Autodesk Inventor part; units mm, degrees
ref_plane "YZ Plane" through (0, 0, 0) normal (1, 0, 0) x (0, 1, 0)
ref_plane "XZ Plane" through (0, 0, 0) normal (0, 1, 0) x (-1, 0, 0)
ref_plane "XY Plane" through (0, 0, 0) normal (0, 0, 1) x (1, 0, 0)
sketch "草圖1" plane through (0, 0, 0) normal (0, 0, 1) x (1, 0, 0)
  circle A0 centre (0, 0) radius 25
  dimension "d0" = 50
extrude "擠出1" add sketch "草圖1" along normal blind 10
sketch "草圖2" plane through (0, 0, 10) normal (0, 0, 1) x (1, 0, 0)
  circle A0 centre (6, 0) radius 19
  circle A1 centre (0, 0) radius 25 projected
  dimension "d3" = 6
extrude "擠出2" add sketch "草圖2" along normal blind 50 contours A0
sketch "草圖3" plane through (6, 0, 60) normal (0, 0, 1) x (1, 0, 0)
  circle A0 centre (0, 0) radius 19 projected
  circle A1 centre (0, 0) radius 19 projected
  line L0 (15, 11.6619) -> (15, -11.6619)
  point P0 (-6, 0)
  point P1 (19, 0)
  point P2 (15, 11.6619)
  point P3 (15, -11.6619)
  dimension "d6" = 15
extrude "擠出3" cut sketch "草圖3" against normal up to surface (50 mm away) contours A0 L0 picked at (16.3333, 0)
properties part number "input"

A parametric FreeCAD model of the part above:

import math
import FreeCAD as App
import Part
import Sketcher

V = App.Vector

doc = App.newDocument("Part")
body = doc.addObject("PartDesign::Body", "Body")

# Sketch on XY plane
sketch1 = body.newObject("Sketcher::SketchObject", "Sketch")
sketch1.AttachmentSupport = (doc.getObject("XY_Plane"), [""])
sketch1.MapMode = "FlatFace"
sketch1.addGeometry(Part.Circle(V(0, 0, 0), V(0, 0, 1), 25), False)
sketch1.addConstraint([
    Sketcher.Constraint("Coincident", 0, 3, -1, 1),
    Sketcher.Constraint("Diameter", 0, 50.0),
])
pad1 = body.newObject("PartDesign::Pad", "Pad")
pad1.Profile = sketch1
pad1.Length = 10

# Sketch on XY plane
sketch2 = body.newObject("Sketcher::SketchObject", "Sketch001")
sketch2.AttachmentSupport = (doc.getObject("XY_Plane"), [""])
sketch2.MapMode = "FlatFace"
sketch2.AttachmentOffset = App.Placement(V(0, 0, 10), App.Rotation())
sketch2.addGeometry(Part.Circle(V(6, 0, 0), V(0, 0, 1), 19), False)
sketch2.addConstraint([
    Sketcher.Constraint("PointOnObject", 0, 3, -1),
    Sketcher.Constraint("Diameter", 0, 38.0),
    Sketcher.Constraint("DistanceX", -1, 1, 0, 3, 6.0),
])
pad2 = body.newObject("PartDesign::Pad", "Pad001")
pad2.Profile = sketch2
pad2.Length = 50

# Sketch on XY plane
sketch3 = body.newObject("Sketcher::SketchObject", "Sketch002")
sketch3.AttachmentSupport = (doc.getObject("XY_Plane"), [""])
sketch3.MapMode = "FlatFace"
sketch3.AttachmentOffset = App.Placement(V(0, 0, 60), App.Rotation())
sketch3.addGeometry([
    Part.ArcOfCircle(Part.Circle(V(6, 0, 0), V(0, 0, 1), 19), math.radians(-38), math.radians(38)),
    Part.LineSegment(V(21, -12, 0), V(21, 12, 0)),
], False)
sketch3.addConstraint([
    Sketcher.Constraint("Coincident", 0, 1, 1, 1),
    Sketcher.Constraint("Coincident", 1, 2, 0, 2),
    Sketcher.Constraint("Vertical", 1),
    Sketcher.Constraint("PointOnObject", 0, 3, -1),
    Sketcher.Constraint("Radius", 0, 19.0),
    Sketcher.Constraint("DistanceX", 0, 3, 0, 1, 15.0),
    Sketcher.Constraint("DistanceX", -1, 1, 0, 3, 6.0),
])
pocket1 = body.newObject("PartDesign::Pocket", "Pocket")
pocket1.Profile = sketch3
pocket1.Length = 50

doc.recompute()
